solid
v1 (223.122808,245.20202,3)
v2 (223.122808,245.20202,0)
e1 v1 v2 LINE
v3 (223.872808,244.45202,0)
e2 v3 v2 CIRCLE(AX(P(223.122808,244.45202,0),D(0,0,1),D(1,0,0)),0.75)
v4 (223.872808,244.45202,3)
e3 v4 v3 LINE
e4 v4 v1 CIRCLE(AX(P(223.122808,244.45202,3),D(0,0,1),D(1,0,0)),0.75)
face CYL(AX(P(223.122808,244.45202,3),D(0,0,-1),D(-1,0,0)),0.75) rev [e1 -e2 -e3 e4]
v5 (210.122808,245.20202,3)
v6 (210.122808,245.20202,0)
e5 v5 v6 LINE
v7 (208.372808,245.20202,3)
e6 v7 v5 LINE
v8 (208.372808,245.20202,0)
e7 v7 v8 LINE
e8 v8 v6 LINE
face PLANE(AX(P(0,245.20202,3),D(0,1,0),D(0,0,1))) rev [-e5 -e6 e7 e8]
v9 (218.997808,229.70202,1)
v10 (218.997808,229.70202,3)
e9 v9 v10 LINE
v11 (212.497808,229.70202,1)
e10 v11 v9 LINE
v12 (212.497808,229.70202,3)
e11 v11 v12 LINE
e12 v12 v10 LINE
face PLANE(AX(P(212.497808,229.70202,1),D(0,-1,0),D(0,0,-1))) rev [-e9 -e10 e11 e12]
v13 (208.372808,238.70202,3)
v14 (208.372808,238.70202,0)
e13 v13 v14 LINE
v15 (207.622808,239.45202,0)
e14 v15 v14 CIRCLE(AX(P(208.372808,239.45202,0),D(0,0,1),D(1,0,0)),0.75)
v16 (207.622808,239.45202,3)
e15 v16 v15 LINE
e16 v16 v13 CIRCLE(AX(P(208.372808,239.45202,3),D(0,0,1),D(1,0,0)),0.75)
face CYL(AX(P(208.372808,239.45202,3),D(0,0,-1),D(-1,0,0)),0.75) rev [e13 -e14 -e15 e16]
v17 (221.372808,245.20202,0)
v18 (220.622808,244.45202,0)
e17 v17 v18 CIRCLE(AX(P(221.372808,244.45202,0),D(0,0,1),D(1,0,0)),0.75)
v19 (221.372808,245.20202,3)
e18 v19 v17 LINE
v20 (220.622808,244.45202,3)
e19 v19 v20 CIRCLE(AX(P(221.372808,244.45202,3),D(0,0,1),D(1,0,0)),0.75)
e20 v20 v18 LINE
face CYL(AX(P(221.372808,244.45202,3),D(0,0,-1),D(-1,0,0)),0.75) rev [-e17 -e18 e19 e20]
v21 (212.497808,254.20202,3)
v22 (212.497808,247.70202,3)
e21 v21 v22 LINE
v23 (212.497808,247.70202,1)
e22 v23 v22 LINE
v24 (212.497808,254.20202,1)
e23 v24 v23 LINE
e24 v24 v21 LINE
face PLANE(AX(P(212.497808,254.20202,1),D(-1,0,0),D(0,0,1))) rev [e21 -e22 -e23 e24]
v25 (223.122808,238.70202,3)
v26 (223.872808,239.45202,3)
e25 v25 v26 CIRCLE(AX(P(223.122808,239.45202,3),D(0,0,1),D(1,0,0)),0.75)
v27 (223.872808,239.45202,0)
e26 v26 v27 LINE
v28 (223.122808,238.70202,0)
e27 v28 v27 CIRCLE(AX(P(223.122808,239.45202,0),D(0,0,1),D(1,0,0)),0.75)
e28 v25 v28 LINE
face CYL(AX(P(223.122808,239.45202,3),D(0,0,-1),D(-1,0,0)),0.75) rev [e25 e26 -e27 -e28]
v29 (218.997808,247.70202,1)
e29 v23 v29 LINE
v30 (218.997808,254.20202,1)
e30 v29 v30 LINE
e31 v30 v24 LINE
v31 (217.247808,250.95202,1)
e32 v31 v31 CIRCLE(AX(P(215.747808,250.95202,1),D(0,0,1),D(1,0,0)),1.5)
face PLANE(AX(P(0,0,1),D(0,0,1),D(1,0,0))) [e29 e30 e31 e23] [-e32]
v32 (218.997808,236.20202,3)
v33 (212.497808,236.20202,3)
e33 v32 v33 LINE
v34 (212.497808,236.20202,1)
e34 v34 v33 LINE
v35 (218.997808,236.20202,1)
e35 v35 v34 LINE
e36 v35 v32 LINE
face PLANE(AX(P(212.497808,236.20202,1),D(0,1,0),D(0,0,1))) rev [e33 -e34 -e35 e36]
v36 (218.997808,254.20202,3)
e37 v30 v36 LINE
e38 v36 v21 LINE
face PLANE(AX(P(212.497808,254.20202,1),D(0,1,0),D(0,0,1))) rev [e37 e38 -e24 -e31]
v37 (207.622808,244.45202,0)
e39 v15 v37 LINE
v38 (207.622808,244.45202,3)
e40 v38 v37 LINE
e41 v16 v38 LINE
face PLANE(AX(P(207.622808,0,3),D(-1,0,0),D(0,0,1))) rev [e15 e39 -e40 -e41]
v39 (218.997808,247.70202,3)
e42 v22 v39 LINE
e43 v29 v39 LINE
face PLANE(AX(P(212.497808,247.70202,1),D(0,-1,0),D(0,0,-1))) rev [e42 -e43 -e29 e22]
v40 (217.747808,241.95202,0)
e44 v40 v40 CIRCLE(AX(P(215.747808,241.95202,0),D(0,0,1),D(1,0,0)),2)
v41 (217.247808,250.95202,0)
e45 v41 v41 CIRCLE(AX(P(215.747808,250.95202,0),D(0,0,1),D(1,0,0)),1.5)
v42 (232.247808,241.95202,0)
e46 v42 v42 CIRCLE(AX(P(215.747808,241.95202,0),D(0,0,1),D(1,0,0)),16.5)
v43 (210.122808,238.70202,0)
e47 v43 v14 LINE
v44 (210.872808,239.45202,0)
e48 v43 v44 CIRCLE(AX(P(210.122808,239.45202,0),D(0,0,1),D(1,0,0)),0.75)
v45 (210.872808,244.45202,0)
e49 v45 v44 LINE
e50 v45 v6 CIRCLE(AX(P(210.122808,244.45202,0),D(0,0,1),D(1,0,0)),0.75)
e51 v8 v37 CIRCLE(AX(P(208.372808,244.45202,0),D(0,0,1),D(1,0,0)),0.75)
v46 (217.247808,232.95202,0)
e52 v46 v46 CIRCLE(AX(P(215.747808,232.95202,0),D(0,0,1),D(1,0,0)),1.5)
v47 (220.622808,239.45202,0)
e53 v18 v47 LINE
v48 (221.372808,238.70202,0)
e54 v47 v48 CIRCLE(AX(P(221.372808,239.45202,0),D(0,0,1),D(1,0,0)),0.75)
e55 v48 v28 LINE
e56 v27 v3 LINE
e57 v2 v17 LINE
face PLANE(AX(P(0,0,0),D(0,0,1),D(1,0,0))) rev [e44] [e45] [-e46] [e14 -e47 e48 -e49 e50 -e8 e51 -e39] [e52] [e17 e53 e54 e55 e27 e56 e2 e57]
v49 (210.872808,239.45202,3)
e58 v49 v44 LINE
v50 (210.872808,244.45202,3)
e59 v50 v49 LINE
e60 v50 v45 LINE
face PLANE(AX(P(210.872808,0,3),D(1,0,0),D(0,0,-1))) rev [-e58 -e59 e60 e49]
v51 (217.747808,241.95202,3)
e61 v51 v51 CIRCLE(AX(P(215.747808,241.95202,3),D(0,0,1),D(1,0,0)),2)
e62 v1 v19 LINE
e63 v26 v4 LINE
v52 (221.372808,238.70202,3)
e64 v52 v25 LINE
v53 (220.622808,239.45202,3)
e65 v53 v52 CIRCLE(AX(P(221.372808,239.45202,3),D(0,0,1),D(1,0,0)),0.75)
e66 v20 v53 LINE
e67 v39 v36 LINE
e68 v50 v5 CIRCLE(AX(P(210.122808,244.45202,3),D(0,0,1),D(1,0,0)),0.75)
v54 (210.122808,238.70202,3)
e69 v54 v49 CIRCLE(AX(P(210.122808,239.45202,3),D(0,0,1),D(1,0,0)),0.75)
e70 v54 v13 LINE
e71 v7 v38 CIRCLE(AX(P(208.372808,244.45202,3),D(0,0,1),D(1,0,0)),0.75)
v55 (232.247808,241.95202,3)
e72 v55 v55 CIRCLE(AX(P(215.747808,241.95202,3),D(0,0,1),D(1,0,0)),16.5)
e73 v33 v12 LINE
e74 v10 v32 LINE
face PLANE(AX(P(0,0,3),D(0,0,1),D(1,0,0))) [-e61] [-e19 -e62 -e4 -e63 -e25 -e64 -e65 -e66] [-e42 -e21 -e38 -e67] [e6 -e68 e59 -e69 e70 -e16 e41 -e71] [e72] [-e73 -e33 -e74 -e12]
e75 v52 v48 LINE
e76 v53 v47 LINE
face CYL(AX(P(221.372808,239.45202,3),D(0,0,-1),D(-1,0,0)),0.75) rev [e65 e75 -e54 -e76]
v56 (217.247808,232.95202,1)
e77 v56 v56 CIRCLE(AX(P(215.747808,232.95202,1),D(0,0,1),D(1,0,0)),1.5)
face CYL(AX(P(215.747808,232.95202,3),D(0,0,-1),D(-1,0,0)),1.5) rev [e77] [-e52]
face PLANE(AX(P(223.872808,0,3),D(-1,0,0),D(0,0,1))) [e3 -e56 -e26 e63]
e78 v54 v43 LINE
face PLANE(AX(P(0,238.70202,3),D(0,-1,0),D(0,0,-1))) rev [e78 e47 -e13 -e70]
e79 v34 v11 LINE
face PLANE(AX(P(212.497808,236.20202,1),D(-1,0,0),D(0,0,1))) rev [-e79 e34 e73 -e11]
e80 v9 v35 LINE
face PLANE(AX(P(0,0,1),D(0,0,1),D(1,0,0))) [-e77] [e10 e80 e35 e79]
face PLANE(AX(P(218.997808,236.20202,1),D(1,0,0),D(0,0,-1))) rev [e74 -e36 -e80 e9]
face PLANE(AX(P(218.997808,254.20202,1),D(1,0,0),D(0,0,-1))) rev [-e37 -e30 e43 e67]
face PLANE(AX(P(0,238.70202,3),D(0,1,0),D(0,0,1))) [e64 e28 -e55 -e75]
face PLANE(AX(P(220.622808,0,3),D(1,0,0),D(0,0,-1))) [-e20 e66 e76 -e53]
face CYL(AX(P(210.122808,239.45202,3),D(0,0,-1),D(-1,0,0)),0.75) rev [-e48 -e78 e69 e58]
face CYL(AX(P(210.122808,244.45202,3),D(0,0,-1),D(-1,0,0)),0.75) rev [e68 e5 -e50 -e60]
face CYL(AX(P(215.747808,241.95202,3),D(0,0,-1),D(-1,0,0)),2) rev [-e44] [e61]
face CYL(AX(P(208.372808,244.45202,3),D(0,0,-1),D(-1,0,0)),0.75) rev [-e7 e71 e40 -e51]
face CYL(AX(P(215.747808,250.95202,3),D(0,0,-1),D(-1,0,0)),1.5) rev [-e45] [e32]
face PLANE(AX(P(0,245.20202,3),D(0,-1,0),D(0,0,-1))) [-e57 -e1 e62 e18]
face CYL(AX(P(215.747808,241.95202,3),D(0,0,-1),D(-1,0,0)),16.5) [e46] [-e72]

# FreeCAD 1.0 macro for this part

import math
import FreeCAD as App
import Part
import Sketcher
from FreeCAD import Vector
Q = App.Units.Quantity

doc = App.newDocument("Part")
body = doc.addObject("PartDesign::Body", "Body")

# Sketch on XY plane
sketch1 = body.newObject("Sketcher::SketchObject", "Sketch")
sketch1.AttachmentSupport = (doc.getObject("XY_Plane"), [""])
sketch1.MapMode = "FlatFace"
sketch1.addGeometry(Part.Circle(Vector(215.747808, 241.95202, 0), Vector(0, 0, 1), 16.5), False)
sketch1.addGeometry(Part.Circle(Vector(215.747808, 232.95202, 0), Vector(0, 0, 1), 1.5), False)
sketch1.addGeometry(Part.ArcOfCircle(Part.Circle(Vector(208.372808, 244.45202, 0), Vector(0, 0, 1), 0.75), math.radians(90), math.radians(180)), False)
sketch1.addGeometry(Part.LineSegment(Vector(208.372808, 245.20202, 0), Vector(210.122808, 245.20202, 0)), False)
sketch1.addGeometry(Part.ArcOfCircle(Part.Circle(Vector(210.122808, 244.45202, 0), Vector(0, 0, 1), 0.75), math.radians(0), math.radians(90)), False)
sketch1.addGeometry(Part.LineSegment(Vector(210.872808, 244.45202, 0), Vector(210.872808, 239.45202, 0)), False)
sketch1.addGeometry(Part.ArcOfCircle(Part.Circle(Vector(210.122808, 239.45202, 0), Vector(0, 0, 1), 0.75), math.radians(-90), math.radians(0)), False)
sketch1.addGeometry(Part.LineSegment(Vector(210.122808, 238.70202, 0), Vector(208.372808, 238.70202, 0)), False)
sketch1.addGeometry(Part.ArcOfCircle(Part.Circle(Vector(208.372808, 239.45202, 0), Vector(0, 0, 1), 0.75), math.radians(-180), math.radians(-90)), False)
sketch1.addGeometry(Part.LineSegment(Vector(207.622808, 239.45202, 0), Vector(207.622808, 244.45202, 0)), False)
sketch1.addGeometry(Part.Circle(Vector(215.747808, 241.95202, 0), Vector(0, 0, 1), 2), False)
sketch1.addGeometry(Part.LineSegment(Vector(221.372808, 245.20202, 0), Vector(223.122808, 245.20202, 0)), False)
sketch1.addGeometry(Part.ArcOfCircle(Part.Circle(Vector(223.122808, 244.45202, 0), Vector(0, 0, 1), 0.75), math.radians(0), math.radians(90)), False)
sketch1.addGeometry(Part.LineSegment(Vector(223.872808, 244.45202, 0), Vector(223.872808, 239.45202, 0)), False)
sketch1.addGeometry(Part.ArcOfCircle(Part.Circle(Vector(223.122808, 239.45202, 0), Vector(0, 0, 1), 0.75), math.radians(-90), math.radians(0)), False)
sketch1.addGeometry(Part.LineSegment(Vector(223.122808, 238.70202, 0), Vector(221.372808, 238.70202, 0)), False)
sketch1.addGeometry(Part.ArcOfCircle(Part.Circle(Vector(221.372808, 239.45202, 0), Vector(0, 0, 1), 0.75), math.radians(-180), math.radians(-90)), False)
sketch1.addGeometry(Part.LineSegment(Vector(220.622808, 239.45202, 0), Vector(220.622808, 244.45202, 0)), False)
sketch1.addGeometry(Part.ArcOfCircle(Part.Circle(Vector(221.372808, 244.45202, 0), Vector(0, 0, 1), 0.75), math.radians(90), math.radians(180)), False)
sketch1.addGeometry(Part.Circle(Vector(215.747808, 250.95202, 0), Vector(0, 0, 1), 1.5), False)
sketch1.addConstraint(Sketcher.Constraint("Tangent", 2, 1, 3, 1))
sketch1.addConstraint(Sketcher.Constraint("Tangent", 3, 2, 4, 2))
sketch1.addConstraint(Sketcher.Constraint("Tangent", 4, 1, 5, 1))
sketch1.addConstraint(Sketcher.Constraint("Tangent", 5, 2, 6, 2))
sketch1.addConstraint(Sketcher.Constraint("Tangent", 6, 1, 7, 1))
sketch1.addConstraint(Sketcher.Constraint("Tangent", 7, 2, 8, 2))
sketch1.addConstraint(Sketcher.Constraint("Tangent", 8, 1, 9, 1))
sketch1.addConstraint(Sketcher.Constraint("Tangent", 9, 2, 2, 2))
sketch1.addConstraint(Sketcher.Constraint("Tangent", 11, 2, 12, 2))
sketch1.addConstraint(Sketcher.Constraint("Tangent", 12, 1, 13, 1))
sketch1.addConstraint(Sketcher.Constraint("Tangent", 13, 2, 14, 2))
sketch1.addConstraint(Sketcher.Constraint("Tangent", 14, 1, 15, 1))
sketch1.addConstraint(Sketcher.Constraint("Tangent", 15, 2, 16, 2))
sketch1.addConstraint(Sketcher.Constraint("Tangent", 16, 1, 17, 1))
sketch1.addConstraint(Sketcher.Constraint("Tangent", 17, 2, 18, 2))
sketch1.addConstraint(Sketcher.Constraint("Tangent", 18, 1, 11, 1))
sketch1.addConstraint(Sketcher.Constraint("Horizontal", 3))
sketch1.addConstraint(Sketcher.Constraint("Vertical", 5))
sketch1.addConstraint(Sketcher.Constraint("Horizontal", 7))
sketch1.addConstraint(Sketcher.Constraint("Vertical", 9))
sketch1.addConstraint(Sketcher.Constraint("Horizontal", 11))
sketch1.addConstraint(Sketcher.Constraint("Vertical", 13))
sketch1.addConstraint(Sketcher.Constraint("Horizontal", 15))
sketch1.addConstraint(Sketcher.Constraint("Vertical", 17))
sketch1.addConstraint(Sketcher.Constraint("Coincident", 10, 3, 0, 3))
sketch1.addConstraint(Sketcher.Constraint("Equal", 2, 4))
sketch1.addConstraint(Sketcher.Constraint("Equal", 4, 6))
sketch1.addConstraint(Sketcher.Constraint("Equal", 6, 8))
sketch1.addConstraint(Sketcher.Constraint("Equal", 8, 12))
sketch1.addConstraint(Sketcher.Constraint("Equal", 12, 14))
sketch1.addConstraint(Sketcher.Constraint("Equal", 14, 16))
sketch1.addConstraint(Sketcher.Constraint("Equal", 16, 18))
sketch1.addConstraint(Sketcher.Constraint("Equal", 1, 19))
sketch1.addConstraint(Sketcher.Constraint("Horizontal", 4, 3, 12, 3))
sketch1.addConstraint(Sketcher.Constraint("Horizontal", 8, 3, 14, 3))
sketch1.addConstraint(Sketcher.Constraint("Vertical", 0, 3, 1, 3))
sketch1.addConstraint(Sketcher.Constraint("Vertical", 10, 3, 19, 3))
sketch1.addConstraint(Sketcher.Constraint("Equal", 7, 11))
sketch1.addConstraint(Sketcher.Constraint("Diameter", 0, Q("33 mm")))
sketch1.addConstraint(Sketcher.Constraint("Diameter", 1, Q("3 mm")))
sketch1.addConstraint(Sketcher.Constraint("Diameter", 10, Q("4 mm")))
sketch1.addConstraint(Sketcher.Constraint("DistanceY", 5, 2, 5, 1, Q("5 mm")))
sketch1.addConstraint(Sketcher.Constraint("Radius", 2, Q("0.75 mm")))
sketch1.addConstraint(Sketcher.Constraint("DistanceY", 1, 3, 0, 3, Q("9 mm")))
sketch1.addConstraint(Sketcher.Constraint("DistanceX", 4, 3, 12, 3, Q("13 mm")))
sketch1.addConstraint(Sketcher.Constraint("DistanceY", 0, 3, 19, 3, Q("9 mm")))
sketch1.addConstraint(Sketcher.Constraint("DistanceX", 3, 1, 3, 2, Q("1.75 mm")))
sketch1.addConstraint(Sketcher.Constraint("DistanceY", 0, 3, 2, 3, Q("2.5 mm")))
sketch1.addConstraint(Sketcher.Constraint("DistanceX", 2, 3, 0, 3, Q("7.375 mm")))
sketch1.addConstraint(Sketcher.Constraint("DistanceY", -1, 1, 0, 3, Q("241.95202 mm")))
sketch1.addConstraint(Sketcher.Constraint("DistanceX", -1, 1, 0, 3, Q("215.747808 mm")))
pad1 = body.newObject("PartDesign::Pad", "Pad")
pad1.Profile = sketch1
pad1.Length = 3

# Sketch on XY plane
sketch2 = body.newObject("Sketcher::SketchObject", "Sketch001")
sketch2.AttachmentSupport = (doc.getObject("XY_Plane"), [""])
sketch2.MapMode = "FlatFace"
sketch2.AttachmentOffset = App.Placement(Vector(0, 0, 3), App.Rotation())
sketch2.addGeometry(Part.LineSegment(Vector(212.497808, 254.20202, 0), Vector(212.497808, 247.70202, 0)), False)
sketch2.addGeometry(Part.LineSegment(Vector(212.497808, 247.70202, 0), Vector(218.997808, 247.70202, 0)), False)
sketch2.addGeometry(Part.LineSegment(Vector(218.997808, 247.70202, 0), Vector(218.997808, 254.20202, 0)), False)
sketch2.addGeometry(Part.LineSegment(Vector(218.997808, 254.20202, 0), Vector(212.497808, 254.20202, 0)), False)
sketch2.addGeometry(Part.LineSegment(Vector(212.497808, 236.20202, 0), Vector(212.497808, 229.70202, 0)), False)
sketch2.addGeometry(Part.LineSegment(Vector(212.497808, 229.70202, 0), Vector(218.997808, 229.70202, 0)), False)
sketch2.addGeometry(Part.LineSegment(Vector(218.997808, 229.70202, 0), Vector(218.997808, 236.20202, 0)), False)
sketch2.addGeometry(Part.LineSegment(Vector(218.997808, 236.20202, 0), Vector(212.497808, 236.20202, 0)), False)
sketch2.addConstraint(Sketcher.Constraint("Coincident", 0, 2, 1, 1))
sketch2.addConstraint(Sketcher.Constraint("Coincident", 1, 2, 2, 1))
sketch2.addConstraint(Sketcher.Constraint("Coincident", 2, 2, 3, 1))
sketch2.addConstraint(Sketcher.Constraint("Coincident", 3, 2, 0, 1))
sketch2.addConstraint(Sketcher.Constraint("Coincident", 4, 2, 5, 1))
sketch2.addConstraint(Sketcher.Constraint("Coincident", 5, 2, 6, 1))
sketch2.addConstraint(Sketcher.Constraint("Coincident", 6, 2, 7, 1))
sketch2.addConstraint(Sketcher.Constraint("Coincident", 7, 2, 4, 1))
sketch2.addConstraint(Sketcher.Constraint("Vertical", 0))
sketch2.addConstraint(Sketcher.Constraint("Horizontal", 1))
sketch2.addConstraint(Sketcher.Constraint("Vertical", 2))
sketch2.addConstraint(Sketcher.Constraint("Horizontal", 3))
sketch2.addConstraint(Sketcher.Constraint("Vertical", 4))
sketch2.addConstraint(Sketcher.Constraint("Horizontal", 5))
sketch2.addConstraint(Sketcher.Constraint("Vertical", 6))
sketch2.addConstraint(Sketcher.Constraint("Horizontal", 7))
sketch2.addConstraint(Sketcher.Constraint("Vertical", 3, 2, 4, 2))
sketch2.addConstraint(Sketcher.Constraint("Vertical", 2, 2, 5, 2))
sketch2.addConstraint(Sketcher.Constraint("Equal", 7, 0))
sketch2.addConstraint(Sketcher.Constraint("Equal", 2, 4))
sketch2.addConstraint(Sketcher.Constraint("DistanceX", 1, 1, 1, 2, Q("6.5 mm")))
sketch2.addConstraint(Sketcher.Constraint("DistanceY", 4, 2, 0, 2, Q("18 mm")))
sketch2.addConstraint(Sketcher.Constraint("DistanceY", -1, 1, 0, 2, Q("247.70202 mm")))
sketch2.addConstraint(Sketcher.Constraint("DistanceX", -1, 1, 0, 2, Q("212.497808 mm")))
pocket1 = body.newObject("PartDesign::Pocket", "Pocket")
pocket1.Profile = sketch2
pocket1.Length = 2

doc.recompute()
